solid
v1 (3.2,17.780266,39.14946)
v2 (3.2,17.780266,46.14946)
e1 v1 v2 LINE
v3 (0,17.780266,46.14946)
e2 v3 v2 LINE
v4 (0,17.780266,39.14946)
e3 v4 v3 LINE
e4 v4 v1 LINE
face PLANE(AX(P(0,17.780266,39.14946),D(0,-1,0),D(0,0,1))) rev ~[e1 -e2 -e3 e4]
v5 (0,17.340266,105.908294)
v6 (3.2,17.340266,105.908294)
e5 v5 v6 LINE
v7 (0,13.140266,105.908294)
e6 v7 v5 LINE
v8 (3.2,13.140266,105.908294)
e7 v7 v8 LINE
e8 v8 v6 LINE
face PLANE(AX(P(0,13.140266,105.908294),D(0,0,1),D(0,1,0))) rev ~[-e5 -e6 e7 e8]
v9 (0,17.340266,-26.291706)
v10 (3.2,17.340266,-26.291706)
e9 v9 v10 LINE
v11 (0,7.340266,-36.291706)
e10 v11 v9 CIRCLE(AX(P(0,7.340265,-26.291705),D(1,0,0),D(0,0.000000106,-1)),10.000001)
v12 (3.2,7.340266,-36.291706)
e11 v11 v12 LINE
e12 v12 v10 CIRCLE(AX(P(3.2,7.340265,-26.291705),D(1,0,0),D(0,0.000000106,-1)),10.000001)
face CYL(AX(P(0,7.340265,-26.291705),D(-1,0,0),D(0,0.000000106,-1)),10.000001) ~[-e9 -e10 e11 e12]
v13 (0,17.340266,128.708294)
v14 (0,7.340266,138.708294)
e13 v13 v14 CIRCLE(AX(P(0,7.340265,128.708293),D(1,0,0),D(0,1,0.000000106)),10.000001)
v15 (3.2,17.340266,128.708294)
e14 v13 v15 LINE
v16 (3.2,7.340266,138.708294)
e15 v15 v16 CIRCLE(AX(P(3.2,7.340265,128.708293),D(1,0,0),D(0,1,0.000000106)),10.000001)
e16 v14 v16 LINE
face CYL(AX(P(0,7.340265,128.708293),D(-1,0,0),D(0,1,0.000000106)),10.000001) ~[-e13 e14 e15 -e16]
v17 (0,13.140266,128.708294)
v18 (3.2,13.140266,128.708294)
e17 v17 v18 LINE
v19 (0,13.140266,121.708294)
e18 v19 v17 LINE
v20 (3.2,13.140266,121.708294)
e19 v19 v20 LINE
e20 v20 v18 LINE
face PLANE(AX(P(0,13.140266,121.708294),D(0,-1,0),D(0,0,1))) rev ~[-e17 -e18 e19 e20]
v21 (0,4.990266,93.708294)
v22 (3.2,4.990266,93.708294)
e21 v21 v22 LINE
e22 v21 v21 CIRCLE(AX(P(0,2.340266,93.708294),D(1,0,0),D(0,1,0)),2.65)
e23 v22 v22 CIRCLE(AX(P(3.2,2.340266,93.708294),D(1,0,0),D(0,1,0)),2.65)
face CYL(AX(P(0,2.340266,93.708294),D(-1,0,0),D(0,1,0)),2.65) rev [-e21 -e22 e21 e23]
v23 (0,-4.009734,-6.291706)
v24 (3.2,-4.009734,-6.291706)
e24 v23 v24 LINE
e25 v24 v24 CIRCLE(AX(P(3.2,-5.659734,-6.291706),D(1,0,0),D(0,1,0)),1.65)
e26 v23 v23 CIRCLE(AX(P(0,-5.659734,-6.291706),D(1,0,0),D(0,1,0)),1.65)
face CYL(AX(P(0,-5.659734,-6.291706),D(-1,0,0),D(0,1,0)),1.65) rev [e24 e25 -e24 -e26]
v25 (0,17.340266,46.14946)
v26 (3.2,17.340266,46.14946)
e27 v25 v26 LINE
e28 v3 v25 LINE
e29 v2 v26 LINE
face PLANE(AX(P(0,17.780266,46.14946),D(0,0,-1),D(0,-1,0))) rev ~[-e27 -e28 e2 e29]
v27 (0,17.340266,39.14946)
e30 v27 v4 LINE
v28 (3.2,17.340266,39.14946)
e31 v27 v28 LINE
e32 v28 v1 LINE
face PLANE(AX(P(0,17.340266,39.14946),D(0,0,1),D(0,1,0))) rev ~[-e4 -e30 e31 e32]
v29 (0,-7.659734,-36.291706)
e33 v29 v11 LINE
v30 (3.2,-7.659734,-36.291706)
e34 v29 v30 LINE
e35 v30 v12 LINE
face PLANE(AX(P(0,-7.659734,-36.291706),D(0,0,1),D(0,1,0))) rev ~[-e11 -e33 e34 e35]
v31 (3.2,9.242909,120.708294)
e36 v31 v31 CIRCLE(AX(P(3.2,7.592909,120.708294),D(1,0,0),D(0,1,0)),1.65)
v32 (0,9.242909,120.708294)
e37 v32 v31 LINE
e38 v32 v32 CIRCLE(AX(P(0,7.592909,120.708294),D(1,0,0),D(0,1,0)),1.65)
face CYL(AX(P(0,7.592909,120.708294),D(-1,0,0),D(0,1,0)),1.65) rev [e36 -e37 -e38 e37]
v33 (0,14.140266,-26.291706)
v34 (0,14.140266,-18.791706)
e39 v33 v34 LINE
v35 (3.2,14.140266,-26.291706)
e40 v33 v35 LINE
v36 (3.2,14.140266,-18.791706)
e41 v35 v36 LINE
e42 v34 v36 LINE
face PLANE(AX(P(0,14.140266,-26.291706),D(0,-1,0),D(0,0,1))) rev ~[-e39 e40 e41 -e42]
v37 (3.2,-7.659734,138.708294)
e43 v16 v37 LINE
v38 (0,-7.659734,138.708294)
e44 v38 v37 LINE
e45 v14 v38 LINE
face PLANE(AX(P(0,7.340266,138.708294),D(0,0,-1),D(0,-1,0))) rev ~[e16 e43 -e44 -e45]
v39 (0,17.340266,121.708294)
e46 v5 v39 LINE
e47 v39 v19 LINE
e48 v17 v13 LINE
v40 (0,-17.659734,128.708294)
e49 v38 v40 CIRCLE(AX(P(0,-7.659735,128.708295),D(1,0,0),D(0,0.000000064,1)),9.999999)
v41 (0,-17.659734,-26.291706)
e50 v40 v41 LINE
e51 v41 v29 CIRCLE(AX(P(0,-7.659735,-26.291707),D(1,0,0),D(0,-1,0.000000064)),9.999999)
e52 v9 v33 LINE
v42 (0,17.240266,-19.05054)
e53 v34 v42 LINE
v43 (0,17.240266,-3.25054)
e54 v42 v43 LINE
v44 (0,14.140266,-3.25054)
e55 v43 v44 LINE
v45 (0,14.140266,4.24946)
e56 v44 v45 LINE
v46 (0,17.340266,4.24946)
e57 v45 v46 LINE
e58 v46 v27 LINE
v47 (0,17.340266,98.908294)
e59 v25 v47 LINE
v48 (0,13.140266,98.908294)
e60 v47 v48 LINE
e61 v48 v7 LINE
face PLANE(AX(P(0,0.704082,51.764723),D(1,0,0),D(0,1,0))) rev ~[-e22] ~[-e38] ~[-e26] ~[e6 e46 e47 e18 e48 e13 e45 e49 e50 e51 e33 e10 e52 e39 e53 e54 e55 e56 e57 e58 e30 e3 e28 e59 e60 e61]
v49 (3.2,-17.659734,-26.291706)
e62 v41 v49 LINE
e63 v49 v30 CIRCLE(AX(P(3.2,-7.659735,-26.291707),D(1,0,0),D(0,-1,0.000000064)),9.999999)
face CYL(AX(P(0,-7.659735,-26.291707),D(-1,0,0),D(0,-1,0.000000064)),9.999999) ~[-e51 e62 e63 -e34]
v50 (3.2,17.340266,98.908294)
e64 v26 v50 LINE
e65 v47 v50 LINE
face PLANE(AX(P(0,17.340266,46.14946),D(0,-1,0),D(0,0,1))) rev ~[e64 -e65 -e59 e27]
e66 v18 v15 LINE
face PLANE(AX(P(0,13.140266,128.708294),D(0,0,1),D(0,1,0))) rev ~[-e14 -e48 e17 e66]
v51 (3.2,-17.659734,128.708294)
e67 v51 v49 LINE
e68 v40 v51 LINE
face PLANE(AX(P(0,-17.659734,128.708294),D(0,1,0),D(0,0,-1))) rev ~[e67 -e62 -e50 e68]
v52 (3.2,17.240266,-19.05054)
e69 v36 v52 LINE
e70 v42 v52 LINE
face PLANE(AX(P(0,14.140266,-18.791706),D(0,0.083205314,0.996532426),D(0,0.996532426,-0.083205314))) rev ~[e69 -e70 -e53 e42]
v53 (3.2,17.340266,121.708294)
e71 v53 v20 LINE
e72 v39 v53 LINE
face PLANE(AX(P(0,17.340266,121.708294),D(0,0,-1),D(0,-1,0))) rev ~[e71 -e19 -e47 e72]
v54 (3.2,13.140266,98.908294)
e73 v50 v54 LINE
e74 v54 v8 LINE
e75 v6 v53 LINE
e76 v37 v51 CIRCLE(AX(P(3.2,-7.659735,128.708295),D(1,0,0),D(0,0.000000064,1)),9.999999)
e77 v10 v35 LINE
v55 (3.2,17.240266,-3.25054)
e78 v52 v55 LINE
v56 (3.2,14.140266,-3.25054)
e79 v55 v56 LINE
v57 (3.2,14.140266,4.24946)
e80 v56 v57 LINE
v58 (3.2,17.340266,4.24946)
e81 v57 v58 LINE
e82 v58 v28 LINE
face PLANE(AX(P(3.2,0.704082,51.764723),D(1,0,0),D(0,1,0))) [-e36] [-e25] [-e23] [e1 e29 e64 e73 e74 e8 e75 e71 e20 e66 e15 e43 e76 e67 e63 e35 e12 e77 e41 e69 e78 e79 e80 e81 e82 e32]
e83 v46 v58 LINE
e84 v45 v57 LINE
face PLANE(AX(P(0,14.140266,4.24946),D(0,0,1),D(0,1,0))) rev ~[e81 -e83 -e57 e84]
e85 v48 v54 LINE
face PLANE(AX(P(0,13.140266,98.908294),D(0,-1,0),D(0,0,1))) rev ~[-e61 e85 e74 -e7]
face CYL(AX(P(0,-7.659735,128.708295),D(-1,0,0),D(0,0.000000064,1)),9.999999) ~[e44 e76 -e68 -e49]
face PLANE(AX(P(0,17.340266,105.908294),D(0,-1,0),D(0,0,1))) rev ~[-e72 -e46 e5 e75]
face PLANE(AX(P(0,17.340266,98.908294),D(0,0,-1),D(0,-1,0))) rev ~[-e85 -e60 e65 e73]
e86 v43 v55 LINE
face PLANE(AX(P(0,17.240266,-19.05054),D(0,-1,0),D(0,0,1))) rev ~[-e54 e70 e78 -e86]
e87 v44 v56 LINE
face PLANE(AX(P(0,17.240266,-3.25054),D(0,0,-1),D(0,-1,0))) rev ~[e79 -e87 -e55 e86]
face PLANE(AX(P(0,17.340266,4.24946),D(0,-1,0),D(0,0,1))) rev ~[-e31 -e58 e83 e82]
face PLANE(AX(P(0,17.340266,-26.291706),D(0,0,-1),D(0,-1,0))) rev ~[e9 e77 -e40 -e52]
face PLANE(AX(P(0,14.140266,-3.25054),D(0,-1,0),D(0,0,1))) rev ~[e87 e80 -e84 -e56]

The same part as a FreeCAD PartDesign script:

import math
import FreeCAD as App
import Part
import Sketcher
from FreeCAD import Vector
Q = App.Units.Quantity

doc = App.newDocument("Part")
body = doc.addObject("PartDesign::Body", "Body")

# Sketch on YZ plane
sketch1 = body.newObject("Sketcher::SketchObject", "Sketch")
sketch1.AttachmentSupport = (doc.getObject("YZ_Plane"), [""])
sketch1.MapMode = "FlatFace"
sketch1.addGeometry(Part.LineSegment(Vector(7.34, 138.71, 0), Vector(-7.66, 138.71, 0)), False)
sketch1.addGeometry(Part.ArcOfCircle(Part.Circle(Vector(-7.66, 128.71, 0), Vector(0, 0, 1), 10), math.radians(90), math.radians(180)), False)
sketch1.addGeometry(Part.LineSegment(Vector(-17.66, 128.71, 0), Vector(-17.66, -26.29, 0)), False)
sketch1.addGeometry(Part.ArcOfCircle(Part.Circle(Vector(-7.66, -26.29, 0), Vector(0, 0, 1), 10), math.radians(180), math.radians(270)), False)
sketch1.addGeometry(Part.LineSegment(Vector(-7.66, -36.29, 0), Vector(7.34, -36.29, 0)), False)
sketch1.addGeometry(Part.ArcOfCircle(Part.Circle(Vector(7.34, -26.29, 0), Vector(0, 0, 1), 10), math.radians(-90), math.radians(0)), False)
sketch1.addGeometry(Part.LineSegment(Vector(17.34, -26.29, 0), Vector(14.14, -26.29, 0)), False)
sketch1.addGeometry(Part.LineSegment(Vector(14.14, -26.29, 0), Vector(14.14, -18.79, 0)), False)
sketch1.addGeometry(Part.LineSegment(Vector(14.14, -18.79, 0), Vector(17.24, -19.05, 0)), False)
sketch1.addGeometry(Part.LineSegment(Vector(17.24, -19.05, 0), Vector(17.24, -3.25, 0)), False)
sketch1.addGeometry(Part.LineSegment(Vector(17.24, -3.25, 0), Vector(14.14, -3.25, 0)), False)
sketch1.addGeometry(Part.LineSegment(Vector(14.14, -3.25, 0), Vector(14.14, 4.25, 0)), False)
sketch1.addGeometry(Part.LineSegment(Vector(14.14, 4.25, 0), Vector(17.34, 4.25, 0)), False)
sketch1.addGeometry(Part.LineSegment(Vector(17.34, 4.25, 0), Vector(17.34, 39.15, 0)), False)
sketch1.addGeometry(Part.LineSegment(Vector(17.34, 39.15, 0), Vector(17.78, 39.15, 0)), False)
sketch1.addGeometry(Part.LineSegment(Vector(17.78, 39.15, 0), Vector(17.78, 46.15, 0)), False)
sketch1.addGeometry(Part.LineSegment(Vector(17.78, 46.15, 0), Vector(17.34, 46.15, 0)), False)
sketch1.addGeometry(Part.LineSegment(Vector(17.34, 46.15, 0), Vector(17.34, 98.91, 0)), False)
sketch1.addGeometry(Part.LineSegment(Vector(17.34, 98.91, 0), Vector(13.14, 98.91, 0)), False)
sketch1.addGeometry(Part.LineSegment(Vector(13.14, 98.91, 0), Vector(13.14, 105.91, 0)), False)
sketch1.addGeometry(Part.LineSegment(Vector(13.14, 105.91, 0), Vector(17.34, 105.91, 0)), False)
sketch1.addGeometry(Part.LineSegment(Vector(17.34, 105.91, 0), Vector(17.34, 121.71, 0)), False)
sketch1.addGeometry(Part.LineSegment(Vector(17.34, 121.71, 0), Vector(13.14, 121.71, 0)), False)
sketch1.addGeometry(Part.LineSegment(Vector(13.14, 121.71, 0), Vector(13.14, 128.71, 0)), False)
sketch1.addGeometry(Part.LineSegment(Vector(13.14, 128.71, 0), Vector(17.34, 128.71, 0)), False)
sketch1.addGeometry(Part.ArcOfCircle(Part.Circle(Vector(7.34, 128.71, 0), Vector(0, 0, 1), 10), math.radians(0), math.radians(90)), False)
sketch1.addGeometry(Part.Circle(Vector(-5.66, -6.29, 0), Vector(0, 0, 1), 1.65), False)
sketch1.addGeometry(Part.Circle(Vector(2.34, 93.71, 0), Vector(0, 0, 1), 2.65), False)
sketch1.addGeometry(Part.Circle(Vector(7.59, 120.71, 0), Vector(0, 0, 1), 1.65), False)
sketch1.addConstraint(Sketcher.Constraint("Tangent", 0, 2, 1, 1))
sketch1.addConstraint(Sketcher.Constraint("Tangent", 1, 2, 2, 1))
sketch1.addConstraint(Sketcher.Constraint("Tangent", 2, 2, 3, 1))
sketch1.addConstraint(Sketcher.Constraint("Tangent", 3, 2, 4, 1))
sketch1.addConstraint(Sketcher.Constraint("Tangent", 4, 2, 5, 1))
sketch1.addConstraint(Sketcher.Constraint("Coincident", 5, 2, 6, 1))
sketch1.addConstraint(Sketcher.Constraint("Coincident", 6, 2, 7, 1))
sketch1.addConstraint(Sketcher.Constraint("Coincident", 7, 2, 8, 1))
sketch1.addConstraint(Sketcher.Constraint("Coincident", 8, 2, 9, 1))
sketch1.addConstraint(Sketcher.Constraint("Coincident", 9, 2, 10, 1))
sketch1.addConstraint(Sketcher.Constraint("Coincident", 10, 2, 11, 1))
sketch1.addConstraint(Sketcher.Constraint("Coincident", 11, 2, 12, 1))
sketch1.addConstraint(Sketcher.Constraint("Coincident", 12, 2, 13, 1))
sketch1.addConstraint(Sketcher.Constraint("Coincident", 13, 2, 14, 1))
sketch1.addConstraint(Sketcher.Constraint("Coincident", 14, 2, 15, 1))
sketch1.addConstraint(Sketcher.Constraint("Coincident", 15, 2, 16, 1))
sketch1.addConstraint(Sketcher.Constraint("Coincident", 16, 2, 17, 1))
sketch1.addConstraint(Sketcher.Constraint("Coincident", 17, 2, 18, 1))
sketch1.addConstraint(Sketcher.Constraint("Coincident", 18, 2, 19, 1))
sketch1.addConstraint(Sketcher.Constraint("Coincident", 19, 2, 20, 1))
sketch1.addConstraint(Sketcher.Constraint("Coincident", 20, 2, 21, 1))
sketch1.addConstraint(Sketcher.Constraint("Coincident", 21, 2, 22, 1))
sketch1.addConstraint(Sketcher.Constraint("Coincident", 22, 2, 23, 1))
sketch1.addConstraint(Sketcher.Constraint("Coincident", 23, 2, 24, 1))
sketch1.addConstraint(Sketcher.Constraint("Coincident", 24, 2, 25, 1))
sketch1.addConstraint(Sketcher.Constraint("Tangent", 25, 2, 0, 1))
sketch1.addConstraint(Sketcher.Constraint("Horizontal", 0))
sketch1.addConstraint(Sketcher.Constraint("Vertical", 2))
sketch1.addConstraint(Sketcher.Constraint("Horizontal", 4))
sketch1.addConstraint(Sketcher.Constraint("Horizontal", 6))
sketch1.addConstraint(Sketcher.Constraint("Vertical", 7))
sketch1.addConstraint(Sketcher.Constraint("Vertical", 9))
sketch1.addConstraint(Sketcher.Constraint("Horizontal", 10))
sketch1.addConstraint(Sketcher.Constraint("Vertical", 11))
sketch1.addConstraint(Sketcher.Constraint("Horizontal", 12))
sketch1.addConstraint(Sketcher.Constraint("Vertical", 13))
sketch1.addConstraint(Sketcher.Constraint("Horizontal", 14))
sketch1.addConstraint(Sketcher.Constraint("Vertical", 15))
sketch1.addConstraint(Sketcher.Constraint("Horizontal", 16))
sketch1.addConstraint(Sketcher.Constraint("Vertical", 17))
sketch1.addConstraint(Sketcher.Constraint("Horizontal", 18))
sketch1.addConstraint(Sketcher.Constraint("Vertical", 19))
sketch1.addConstraint(Sketcher.Constraint("Horizontal", 20))
sketch1.addConstraint(Sketcher.Constraint("Vertical", 21))
sketch1.addConstraint(Sketcher.Constraint("Horizontal", 22))
sketch1.addConstraint(Sketcher.Constraint("Vertical", 23))
sketch1.addConstraint(Sketcher.Constraint("Horizontal", 24))
sketch1.addConstraint(Sketcher.Constraint("Equal", 1, 3))
sketch1.addConstraint(Sketcher.Constraint("Equal", 3, 5))
sketch1.addConstraint(Sketcher.Constraint("Equal", 5, 25))
sketch1.addConstraint(Sketcher.Constraint("Equal", 26, 28))
sketch1.addConstraint(Sketcher.Constraint("Horizontal", 2, 2, 5, 2))
sketch1.addConstraint(Sketcher.Constraint("Horizontal", 1, 2, 23, 2))
sketch1.addConstraint(Sketcher.Constraint("Vertical", 5, 3, 25, 3))
sketch1.addConstraint(Sketcher.Constraint("Vertical", 7, 2, 10, 2))
sketch1.addConstraint(Sketcher.Constraint("Vertical", 5, 2, 12, 2))
sketch1.addConstraint(Sketcher.Constraint("Vertical", 13, 2, 16, 2))
sketch1.addConstraint(Sketcher.Constraint("Vertical", 17, 2, 20, 2))
sketch1.addConstraint(Sketcher.Constraint("Vertical", 19, 2, 22, 2))
sketch1.addConstraint(Sketcher.Constraint("Equal", 7, 11))
sketch1.addConstraint(Sketcher.Constraint("Equal", 15, 19))
sketch1.addConstraint(Sketcher.Constraint("Equal", 9, 21))
sketch1.addConstraint(Sketcher.Constraint("Equal", 19, 23))
sketch1.addConstraint(Sketcher.Constraint("Radius", 1, Q("9.999999 mm")))
sketch1.addConstraint(Sketcher.Constraint("Diameter", 26, Q("3.3 mm")))
sketch1.addConstraint(Sketcher.Constraint("Diameter", 27, Q("5.3 mm")))
sketch1.addConstraint(Sketcher.Constraint("DistanceX", 0, 2, 0, 1, Q("15 mm")))
sketch1.addConstraint(Sketcher.Constraint("DistanceY", 2, 2, 2, 1, Q("155 mm")))
sketch1.addConstraint(Sketcher.Constraint("DistanceY", 15, 1, 15, 2, Q("7 mm")))
sketch1.addConstraint(Sketcher.Constraint("DistanceX", 6, 2, 6, 1, Q("3.2 mm")))
sketch1.addConstraint(Sketcher.Constraint("DistanceX", 10, 2, 10, 1, Q("3.1 mm")))
sketch1.addConstraint(Sketcher.Constraint("DistanceX", 18, 2, 18, 1, Q("4.2 mm")))
sketch1.addConstraint(Sketcher.Constraint("DistanceY", 7, 1, 7, 2, Q("7.5 mm")))
sketch1.addConstraint(Sketcher.Constraint("DistanceY", 9, 1, 9, 2, Q("15.8 mm")))
sketch1.addConstraint(Sketcher.Constraint("DistanceY", 13, 1, 13, 2, Q("34.9 mm")))
sketch1.addConstraint(Sketcher.Constraint("DistanceX", 3, 3, 26, 3, Q("2.000001 mm")))
sketch1.addConstraint(Sketcher.Constraint("DistanceY", 3, 3, 26, 3, Q("20.000001 mm")))
sketch1.addConstraint(Sketcher.Constraint("DistanceX", 27, 3, 25, 3, Q("4.999999 mm")))
sketch1.addConstraint(Sketcher.Constraint("DistanceY", 27, 3, 25, 3, Q("34.999999 mm")))
sketch1.addConstraint(Sketcher.Constraint("DistanceY", 28, 3, 25, 3, Q("7.999999 mm")))
sketch1.addConstraint(Sketcher.Constraint("DistanceX", 14, 1, 14, 2, Q("0.44 mm")))
sketch1.addConstraint(Sketcher.Constraint("DistanceY", 17, 1, 17, 2, Q("52.758834 mm")))
sketch1.addConstraint(Sketcher.Constraint("DistanceX", -1, 1, 28, 3, Q("7.592909 mm")))
sketch1.addConstraint(Sketcher.Constraint("DistanceY", 8, 2, -1, 1, Q("19.05054 mm")))
sketch1.addConstraint(Sketcher.Constraint("DistanceX", 1, 3, -1, 1, Q("7.659735 mm")))
pad1 = body.newObject("PartDesign::Pad", "Pad")
pad1.Profile = sketch1
pad1.Length = 3.2

doc.recompute()
